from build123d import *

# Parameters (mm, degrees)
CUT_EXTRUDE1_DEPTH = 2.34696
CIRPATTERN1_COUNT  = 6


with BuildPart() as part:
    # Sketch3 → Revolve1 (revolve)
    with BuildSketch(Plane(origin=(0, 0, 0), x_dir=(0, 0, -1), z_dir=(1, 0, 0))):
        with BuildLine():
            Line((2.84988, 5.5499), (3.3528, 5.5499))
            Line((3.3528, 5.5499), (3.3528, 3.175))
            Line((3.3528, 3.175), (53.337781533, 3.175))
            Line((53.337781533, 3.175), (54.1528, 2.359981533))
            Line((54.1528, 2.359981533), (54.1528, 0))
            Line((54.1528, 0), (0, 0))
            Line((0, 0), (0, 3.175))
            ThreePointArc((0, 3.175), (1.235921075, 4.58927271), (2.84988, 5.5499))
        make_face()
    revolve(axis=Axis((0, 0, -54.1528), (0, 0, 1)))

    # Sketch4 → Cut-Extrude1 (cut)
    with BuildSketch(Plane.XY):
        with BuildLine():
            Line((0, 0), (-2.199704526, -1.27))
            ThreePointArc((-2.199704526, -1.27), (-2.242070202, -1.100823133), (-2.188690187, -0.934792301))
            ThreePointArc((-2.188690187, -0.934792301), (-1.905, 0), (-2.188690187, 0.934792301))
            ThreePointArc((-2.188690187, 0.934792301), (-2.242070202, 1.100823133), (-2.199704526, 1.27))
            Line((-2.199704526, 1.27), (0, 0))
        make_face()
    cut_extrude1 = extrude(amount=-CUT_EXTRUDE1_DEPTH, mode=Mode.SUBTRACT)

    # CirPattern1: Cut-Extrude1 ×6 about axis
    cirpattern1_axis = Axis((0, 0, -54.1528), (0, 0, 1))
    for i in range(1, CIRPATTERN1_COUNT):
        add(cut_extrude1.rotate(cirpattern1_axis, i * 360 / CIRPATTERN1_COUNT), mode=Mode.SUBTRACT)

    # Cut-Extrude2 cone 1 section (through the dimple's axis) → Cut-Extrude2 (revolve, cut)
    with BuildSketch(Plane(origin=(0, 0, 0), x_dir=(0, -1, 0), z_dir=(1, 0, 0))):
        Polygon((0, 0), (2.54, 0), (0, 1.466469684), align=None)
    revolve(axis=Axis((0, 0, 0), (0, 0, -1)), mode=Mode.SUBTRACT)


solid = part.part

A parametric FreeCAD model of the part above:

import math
import FreeCAD as App
import Part
import Sketcher

V = App.Vector
Q = App.Units.Quantity

doc = App.newDocument("Part")
body = doc.addObject("PartDesign::Body", "Body")

# Sketch on YZ plane
sketch1 = doc.addObject("Sketcher::SketchObject", "Sketch")
body.addObject(sketch1)
sketch1.AttachmentSupport = (doc.YZ_Plane, [""])
sketch1.MapMode = "FlatFace"
sketch1.addGeometry([
    Part.LineSegment(V(5.5499, -3.3528, 0), V(5.5499, -2.84988, 0)),  # 0
    Part.ArcOfCircle(Part.Circle(V(0, -5.060315, 0), V(0, 0, 1), 5.973894), math.radians(21.716589), math.radians(57.894553)),  # 1
    Part.LineSegment(V(3.175, 0, 0), V(0, 0, 0)),  # 2
    Part.LineSegment(V(0, 0, 0), V(0, -54.1528, 0)),  # 3
    Part.LineSegment(V(0, -54.1528, 0), V(2.359982, -54.1528, 0)),  # 4
    Part.LineSegment(V(2.359982, -54.1528, 0), V(3.175, -53.337782, 0)),  # 5
    Part.LineSegment(V(3.175, -53.337782, 0), V(3.175, -3.3528, 0)),  # 6
    Part.LineSegment(V(3.175, -3.3528, 0), V(5.5499, -3.3528, 0)),  # 7
], False)
sketch1.addConstraint([
    Sketcher.Constraint("Coincident", 0, 2, 1, 1),
    Sketcher.Constraint("Coincident", 1, 2, 2, 1),
    Sketcher.Constraint("Coincident", 2, 2, 3, 1),
    Sketcher.Constraint("Coincident", 3, 2, 4, 1),
    Sketcher.Constraint("Coincident", 4, 2, 5, 1),
    Sketcher.Constraint("Coincident", 5, 2, 6, 1),
    Sketcher.Constraint("Coincident", 6, 2, 7, 1),
    Sketcher.Constraint("Coincident", 7, 2, 0, 1),
    Sketcher.Constraint("Vertical", 0),
    Sketcher.Constraint("Horizontal", 2),
    Sketcher.Constraint("Vertical", 3),
    Sketcher.Constraint("Horizontal", 4),
    Sketcher.Constraint("Vertical", 6),
    Sketcher.Constraint("Horizontal", 7),
    Sketcher.Constraint("Coincident", 2, 2, -1, 1),
    Sketcher.Constraint("PointOnObject", 1, 3, -2),
    Sketcher.Constraint("Vertical", 1, 2, 5, 2),
    Sketcher.Constraint("Angle", 5, Q("45 deg")),
    Sketcher.Constraint("DistanceX", 2, 2, 2, 1, Q("0.125 in")),
    Sketcher.Constraint("DistanceY", 3, 2, 3, 1, Q("2.132 in")),
    Sketcher.Constraint("DistanceX", 7, 1, 7, 2, Q("0.0935 in")),
    Sketcher.Constraint("DistanceY", 0, 1, 0, 2, Q("0.0198 in")),
    Sketcher.Constraint("DistanceY", 6, 2, -1, 1, Q("0.132 in")),
    Sketcher.Constraint("DistanceX", 4, 1, 4, 2, 2.359982),
])
revolution = doc.addObject("PartDesign::Revolution", "Revolution")
body.addObject(revolution)
revolution.Profile = sketch1
revolution.ReferenceAxis = (sketch1, ["V_Axis"])
revolution.Angle = 360

# Sketch on XY plane
sketch2 = doc.addObject("Sketcher::SketchObject", "Sketch001")
body.addObject(sketch2)
sketch2.AttachmentSupport = (doc.XY_Plane, [""])
sketch2.MapMode = "FlatFace"
sketch2.addGeometry([
    Part.LineSegment(V(-2.199705, -1.27, 0), V(0, 0, 0)),  # 0
    Part.LineSegment(V(0, 0, 0), V(-2.199705, 1.27, 0)),  # 1
    Part.ArcOfCircle(Part.Circle(V(-1.924741, 1.11125, 0), V(0, 0, 1), 0.3175), math.radians(150), math.radians(213.763924)),  # 2
    Part.ArcOfCircle(Part.Circle(V(-3.58697, 0, 0), V(0, 0, 1), 1.68197), math.radians(-33.763924), math.radians(33.763924)),  # 3
    Part.ArcOfCircle(Part.Circle(V(-1.924741, -1.11125, 0), V(0, 0, 1), 0.3175), math.radians(146.236076), math.radians(210)),  # 4
], False)
sketch2.addConstraint([
    Sketcher.Constraint("Coincident", 0, 2, 1, 1),
    Sketcher.Constraint("Coincident", 1, 2, 2, 1),
    Sketcher.Constraint("Tangent", 2, 2, 3, 2),
    Sketcher.Constraint("Tangent", 3, 1, 4, 1),
    Sketcher.Constraint("Coincident", 4, 2, 0, 1),
    Sketcher.Constraint("Coincident", 0, 2, -1, 1),
    Sketcher.Constraint("Equal", 2, 4),
    Sketcher.Constraint("Symmetric", 2, 3, 4, 3, -1),
    Sketcher.Constraint("Vertical", 1, 2, 4, 2),
    Sketcher.Constraint("Angle", 0, Q("30 deg")),
    Sketcher.Constraint("Distance", 0, Q("0.1 in")),
    Sketcher.Constraint("Radius", 2, Q("0.0125 in")),
    Sketcher.Constraint("Radius", 3, 1.68197),
    Sketcher.Constraint("DistanceY", 4, 3, 1, 2, Q("0.09375 in")),
])
pocket1 = doc.addObject("PartDesign::Pocket", "Pocket")
body.addObject(pocket1)
pocket1.Profile = sketch2
pocket1.Length = Q("0.0924 in")
doc.recompute()

polarpattern = doc.addObject("PartDesign::PolarPattern", "PolarPattern")
body.addObject(polarpattern)
polarpattern.Originals = [pocket1]
polarpattern.Axis = (doc.Z_Axis, [""])
polarpattern.Angle = 360
polarpattern.Occurrences = 6
body.Tip = polarpattern

# Sketch on YZ plane
sketch3 = doc.addObject("Sketcher::SketchObject", "Sketch002")
body.addObject(sketch3)
sketch3.AttachmentSupport = (doc.YZ_Plane, [""])
sketch3.MapMode = "FlatFace"
sketch3.addGeometry([
    Part.LineSegment(V(0, 0, 0), V(-2.54, 0, 0)),
    Part.LineSegment(V(-2.54, 0, 0), V(0, -1.46647, 0)),
    Part.LineSegment(V(0, -1.46647, 0), V(0, 0, 0)),
], False)
sketch3.addConstraint([
    Sketcher.Constraint("Coincident", 0, 2, 1, 1),
    Sketcher.Constraint("Coincident", 1, 2, 2, 1),
    Sketcher.Constraint("Coincident", 2, 2, 0, 1),
    Sketcher.Constraint("Horizontal", 0),
    Sketcher.Constraint("Vertical", 2),
    Sketcher.Constraint("Coincident", 2, 2, -1, 1),
    Sketcher.Constraint("DistanceX", 0, 2, 0, 1, Q("0.1 in")),
    Sketcher.Constraint("Angle", 1, Q("-30 deg")),
])
groove = doc.addObject("PartDesign::Groove", "Groove")
body.addObject(groove)
groove.Profile = sketch3
groove.ReferenceAxis = (sketch3, ["V_Axis"])
groove.Angle = 360

doc.recompute()
